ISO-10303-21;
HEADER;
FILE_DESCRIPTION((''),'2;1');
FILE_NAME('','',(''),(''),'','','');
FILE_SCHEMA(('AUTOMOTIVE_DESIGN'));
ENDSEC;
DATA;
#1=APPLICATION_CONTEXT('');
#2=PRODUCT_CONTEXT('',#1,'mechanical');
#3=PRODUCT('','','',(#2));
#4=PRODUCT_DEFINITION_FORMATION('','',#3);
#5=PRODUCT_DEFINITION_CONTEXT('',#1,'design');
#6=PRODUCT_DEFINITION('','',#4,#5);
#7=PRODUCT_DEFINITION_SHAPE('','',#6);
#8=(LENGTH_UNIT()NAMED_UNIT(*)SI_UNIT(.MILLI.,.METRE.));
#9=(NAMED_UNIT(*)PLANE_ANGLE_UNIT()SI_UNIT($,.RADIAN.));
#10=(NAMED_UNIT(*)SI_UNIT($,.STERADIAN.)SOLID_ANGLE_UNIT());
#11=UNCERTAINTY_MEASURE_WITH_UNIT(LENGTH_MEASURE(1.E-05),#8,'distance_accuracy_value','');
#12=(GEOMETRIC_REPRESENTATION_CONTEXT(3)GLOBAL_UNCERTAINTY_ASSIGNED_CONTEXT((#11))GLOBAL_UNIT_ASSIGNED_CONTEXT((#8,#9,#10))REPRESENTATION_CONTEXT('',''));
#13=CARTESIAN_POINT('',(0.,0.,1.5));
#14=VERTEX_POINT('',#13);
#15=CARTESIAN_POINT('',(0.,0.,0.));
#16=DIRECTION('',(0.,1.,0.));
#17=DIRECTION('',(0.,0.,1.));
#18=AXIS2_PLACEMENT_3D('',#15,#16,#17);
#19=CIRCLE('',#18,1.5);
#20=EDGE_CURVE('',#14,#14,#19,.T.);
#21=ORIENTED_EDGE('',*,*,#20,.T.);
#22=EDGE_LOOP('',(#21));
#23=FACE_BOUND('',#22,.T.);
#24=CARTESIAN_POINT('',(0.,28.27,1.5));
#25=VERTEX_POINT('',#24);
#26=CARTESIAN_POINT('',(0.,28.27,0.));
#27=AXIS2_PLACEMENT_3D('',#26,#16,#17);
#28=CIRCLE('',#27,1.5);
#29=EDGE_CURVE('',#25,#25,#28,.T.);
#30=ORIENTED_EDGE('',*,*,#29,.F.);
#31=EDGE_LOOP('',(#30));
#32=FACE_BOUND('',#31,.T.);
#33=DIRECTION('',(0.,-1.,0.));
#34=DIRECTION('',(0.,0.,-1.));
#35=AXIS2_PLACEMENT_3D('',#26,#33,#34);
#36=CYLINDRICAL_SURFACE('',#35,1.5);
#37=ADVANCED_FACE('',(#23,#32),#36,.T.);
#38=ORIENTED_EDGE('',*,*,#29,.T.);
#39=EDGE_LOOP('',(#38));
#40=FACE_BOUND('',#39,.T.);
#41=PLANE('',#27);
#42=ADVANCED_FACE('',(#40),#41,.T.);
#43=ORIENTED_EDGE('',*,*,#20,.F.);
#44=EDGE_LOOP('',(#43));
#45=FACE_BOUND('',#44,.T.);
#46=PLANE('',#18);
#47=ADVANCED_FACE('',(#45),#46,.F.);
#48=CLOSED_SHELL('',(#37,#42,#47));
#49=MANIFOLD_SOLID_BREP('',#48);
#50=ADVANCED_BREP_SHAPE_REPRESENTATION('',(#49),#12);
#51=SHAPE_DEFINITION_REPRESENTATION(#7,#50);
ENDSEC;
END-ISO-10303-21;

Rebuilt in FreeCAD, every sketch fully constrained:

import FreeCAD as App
import Part
import Sketcher

V = App.Vector

doc = App.newDocument("Part")
body = doc.addObject("PartDesign::Body", "Body")

sketch1 = doc.addObject("Sketcher::SketchObject", "Sketch")
body.addObject(sketch1)
sketch1.AttachmentSupport = (doc.XZ_Plane, [""])
sketch1.MapMode = "FlatFace"
sketch1.addGeometry(Part.Circle(V(0, 0, 0), V(0, 0, 1), 1.5), False)
sketch1.addConstraint([
    Sketcher.Constraint("Coincident", 0, 3, -1, 1),
    Sketcher.Constraint("Diameter", 0, 3.0),
])
pad1 = doc.addObject("PartDesign::Pad", "Pad")
body.addObject(pad1)
pad1.Profile = sketch1
pad1.Length = 28.27
pad1.Reversed = True

doc.recompute()
